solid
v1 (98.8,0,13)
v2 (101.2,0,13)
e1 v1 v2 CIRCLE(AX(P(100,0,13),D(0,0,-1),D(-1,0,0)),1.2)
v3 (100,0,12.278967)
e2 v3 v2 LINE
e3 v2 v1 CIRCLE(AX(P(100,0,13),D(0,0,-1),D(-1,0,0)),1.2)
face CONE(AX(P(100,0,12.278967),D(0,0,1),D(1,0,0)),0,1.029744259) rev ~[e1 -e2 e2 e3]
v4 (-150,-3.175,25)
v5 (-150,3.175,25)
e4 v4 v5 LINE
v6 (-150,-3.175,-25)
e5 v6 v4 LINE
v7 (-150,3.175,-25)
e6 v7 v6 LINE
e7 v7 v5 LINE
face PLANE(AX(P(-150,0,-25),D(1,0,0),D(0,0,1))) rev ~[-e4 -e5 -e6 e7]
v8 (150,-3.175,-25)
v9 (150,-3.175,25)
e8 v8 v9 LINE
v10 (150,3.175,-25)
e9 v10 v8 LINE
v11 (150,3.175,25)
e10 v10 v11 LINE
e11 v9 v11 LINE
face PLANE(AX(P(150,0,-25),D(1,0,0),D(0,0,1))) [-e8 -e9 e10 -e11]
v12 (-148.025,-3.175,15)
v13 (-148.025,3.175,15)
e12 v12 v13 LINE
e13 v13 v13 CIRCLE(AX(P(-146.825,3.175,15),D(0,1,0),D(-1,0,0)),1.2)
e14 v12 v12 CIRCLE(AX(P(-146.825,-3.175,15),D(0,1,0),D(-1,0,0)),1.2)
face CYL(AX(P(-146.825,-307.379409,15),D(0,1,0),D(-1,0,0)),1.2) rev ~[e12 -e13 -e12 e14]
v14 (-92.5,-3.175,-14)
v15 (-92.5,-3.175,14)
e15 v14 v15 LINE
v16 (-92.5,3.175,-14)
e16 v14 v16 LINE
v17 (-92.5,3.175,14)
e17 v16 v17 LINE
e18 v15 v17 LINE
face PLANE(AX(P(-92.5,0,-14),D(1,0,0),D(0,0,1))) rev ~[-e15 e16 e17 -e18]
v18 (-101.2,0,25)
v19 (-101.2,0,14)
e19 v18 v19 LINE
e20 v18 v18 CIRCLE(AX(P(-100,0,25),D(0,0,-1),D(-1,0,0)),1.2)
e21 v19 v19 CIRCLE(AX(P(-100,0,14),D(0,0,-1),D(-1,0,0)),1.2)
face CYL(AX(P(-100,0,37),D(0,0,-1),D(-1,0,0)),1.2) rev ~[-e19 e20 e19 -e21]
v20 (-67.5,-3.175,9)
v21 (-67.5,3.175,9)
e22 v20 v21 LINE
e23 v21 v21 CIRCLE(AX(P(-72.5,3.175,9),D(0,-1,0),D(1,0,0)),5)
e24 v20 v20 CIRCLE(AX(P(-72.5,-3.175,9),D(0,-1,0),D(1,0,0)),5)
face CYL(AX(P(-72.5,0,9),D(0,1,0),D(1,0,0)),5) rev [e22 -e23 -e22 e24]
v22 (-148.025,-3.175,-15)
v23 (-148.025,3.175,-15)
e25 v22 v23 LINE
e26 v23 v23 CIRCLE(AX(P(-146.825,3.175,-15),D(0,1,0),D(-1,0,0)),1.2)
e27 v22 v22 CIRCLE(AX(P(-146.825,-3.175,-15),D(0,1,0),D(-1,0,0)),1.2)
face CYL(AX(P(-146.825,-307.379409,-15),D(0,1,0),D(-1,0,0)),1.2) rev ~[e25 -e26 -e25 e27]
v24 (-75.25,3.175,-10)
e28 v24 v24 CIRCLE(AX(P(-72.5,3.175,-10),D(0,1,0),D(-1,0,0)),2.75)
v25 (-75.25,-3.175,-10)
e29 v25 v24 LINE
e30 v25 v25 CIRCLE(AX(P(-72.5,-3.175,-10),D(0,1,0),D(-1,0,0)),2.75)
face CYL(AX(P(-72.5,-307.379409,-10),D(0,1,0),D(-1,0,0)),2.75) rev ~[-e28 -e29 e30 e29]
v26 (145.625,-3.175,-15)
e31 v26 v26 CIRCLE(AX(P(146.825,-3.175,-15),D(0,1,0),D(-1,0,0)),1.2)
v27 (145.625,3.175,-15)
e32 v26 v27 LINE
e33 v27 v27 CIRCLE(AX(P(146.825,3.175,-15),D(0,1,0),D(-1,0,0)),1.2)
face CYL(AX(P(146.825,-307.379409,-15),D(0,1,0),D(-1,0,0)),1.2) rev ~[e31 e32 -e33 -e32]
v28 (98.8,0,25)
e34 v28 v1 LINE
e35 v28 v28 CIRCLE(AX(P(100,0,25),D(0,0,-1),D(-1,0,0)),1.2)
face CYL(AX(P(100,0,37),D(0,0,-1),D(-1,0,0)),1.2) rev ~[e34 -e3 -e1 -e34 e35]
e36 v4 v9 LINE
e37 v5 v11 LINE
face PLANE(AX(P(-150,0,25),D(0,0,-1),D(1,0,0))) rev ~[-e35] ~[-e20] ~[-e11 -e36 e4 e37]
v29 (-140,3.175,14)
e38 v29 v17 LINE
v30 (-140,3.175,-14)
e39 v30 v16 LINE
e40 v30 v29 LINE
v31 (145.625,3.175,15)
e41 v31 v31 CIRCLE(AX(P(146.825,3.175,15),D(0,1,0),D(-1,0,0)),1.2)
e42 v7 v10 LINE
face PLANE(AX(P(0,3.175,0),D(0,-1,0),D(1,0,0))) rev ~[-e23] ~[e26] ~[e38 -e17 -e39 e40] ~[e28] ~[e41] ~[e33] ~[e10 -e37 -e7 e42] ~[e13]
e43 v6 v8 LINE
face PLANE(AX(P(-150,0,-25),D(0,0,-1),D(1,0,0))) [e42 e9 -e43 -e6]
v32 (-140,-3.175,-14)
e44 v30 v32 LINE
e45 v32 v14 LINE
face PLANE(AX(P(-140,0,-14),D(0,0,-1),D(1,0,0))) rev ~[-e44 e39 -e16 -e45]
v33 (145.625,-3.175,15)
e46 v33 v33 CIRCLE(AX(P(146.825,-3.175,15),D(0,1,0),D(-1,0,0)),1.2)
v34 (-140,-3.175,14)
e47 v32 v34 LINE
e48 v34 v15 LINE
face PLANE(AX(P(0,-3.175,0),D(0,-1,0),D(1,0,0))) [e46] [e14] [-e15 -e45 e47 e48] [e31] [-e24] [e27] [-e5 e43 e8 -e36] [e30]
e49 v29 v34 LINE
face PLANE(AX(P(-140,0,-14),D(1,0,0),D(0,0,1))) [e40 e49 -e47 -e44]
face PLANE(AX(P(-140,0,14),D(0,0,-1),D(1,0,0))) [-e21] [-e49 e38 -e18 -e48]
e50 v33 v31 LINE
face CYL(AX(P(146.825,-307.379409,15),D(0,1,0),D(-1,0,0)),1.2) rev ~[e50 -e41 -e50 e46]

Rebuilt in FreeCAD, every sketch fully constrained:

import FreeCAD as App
import Part
import Sketcher
from FreeCAD import Vector
Q = App.Units.Quantity

doc = App.newDocument("Part")
body = doc.addObject("PartDesign::Body", "Body")

# Sketch on XZ plane
sketch1 = body.newObject("Sketcher::SketchObject", "Sketch")
sketch1.AttachmentSupport = (doc.getObject("XZ_Plane"), [""])
sketch1.MapMode = "FlatFace"
sketch1.addGeometry([
    Part.LineSegment(Vector(-150, 25, 0), Vector(-150, -25, 0)),  # 0
    Part.LineSegment(Vector(-150, -25, 0), Vector(150, -25, 0)),  # 1
    Part.LineSegment(Vector(150, -25, 0), Vector(150, 25, 0)),  # 2
    Part.LineSegment(Vector(150, 25, 0), Vector(-150, 25, 0)),  # 3
    Part.LineSegment(Vector(-92, -14, 0), Vector(-140, -14, 0)),  # 4
    Part.LineSegment(Vector(-140, -14, 0), Vector(-140, 14, 0)),  # 5
    Part.LineSegment(Vector(-140, 14, 0), Vector(-92, 14, 0)),  # 6
    Part.LineSegment(Vector(-92, 14, 0), Vector(-92, -14, 0)),  # 7
    Part.Circle(Vector(-72, 9, 0), Vector(0, 0, 1), 5),  # 8
], False)
sketch1.addConstraint([
    Sketcher.Constraint("Coincident", 0, 2, 1, 1),
    Sketcher.Constraint("Coincident", 1, 2, 2, 1),
    Sketcher.Constraint("Coincident", 2, 2, 3, 1),
    Sketcher.Constraint("Coincident", 3, 2, 0, 1),
    Sketcher.Constraint("Coincident", 4, 2, 5, 1),
    Sketcher.Constraint("Coincident", 5, 2, 6, 1),
    Sketcher.Constraint("Coincident", 6, 2, 7, 1),
    Sketcher.Constraint("Coincident", 7, 2, 4, 1),
    Sketcher.Constraint("Vertical", 0),
    Sketcher.Constraint("Horizontal", 1),
    Sketcher.Constraint("Vertical", 2),
    Sketcher.Constraint("Horizontal", 3),
    Sketcher.Constraint("Horizontal", 4),
    Sketcher.Constraint("Vertical", 5),
    Sketcher.Constraint("Horizontal", 6),
    Sketcher.Constraint("Vertical", 7),
    Sketcher.Constraint("Symmetric", 0, 2, 2, 2, -1, 1),
    Sketcher.Constraint("Diameter", 8, Q("10 mm")),
    Sketcher.Constraint("DistanceX", 1, 1, 1, 2, Q("300 mm")),
    Sketcher.Constraint("DistanceY", 0, 2, 0, 1, Q("50 mm")),
    Sketcher.Constraint("DistanceY", 5, 1, 5, 2, Q("28 mm")),
    Sketcher.Constraint("DistanceX", 4, 2, 4, 1, Q("47.5 mm")),
    Sketcher.Constraint("DistanceY", -1, 1, 8, 3, Q("9 mm")),
    Sketcher.Constraint("DistanceX", 4, 2, -1, 1, Q("140 mm")),
    Sketcher.Constraint("DistanceY", 4, 2, -1, 1, Q("14 mm")),
    Sketcher.Constraint("DistanceX", 6, 2, 8, 3, Q("20 mm")),
])
pad1 = body.newObject("PartDesign::Pad", "Pad")
pad1.Profile = sketch1
pad1.Length = 6.35
pad1.Midplane = True

# Sketch on XZ plane
sketch2 = body.newObject("Sketcher::SketchObject", "Sketch001")
sketch2.AttachmentSupport = (doc.getObject("XZ_Plane"), [""])
sketch2.MapMode = "FlatFace"
sketch2.AttachmentOffset = App.Placement(Vector(0, 0, 3.175), App.Rotation())
sketch2.addGeometry([
    Part.Circle(Vector(-146.8, 15, 0), Vector(0, 0, 1), 1.2),
    Part.Circle(Vector(-146.8, -15, 0), Vector(0, 0, 1), 1.2),
    Part.Circle(Vector(146.8, 15, 0), Vector(0, 0, 1), 1.2),
    Part.Circle(Vector(146.8, -15, 0), Vector(0, 0, 1), 1.2),
], False)
sketch2.addConstraint([
    Sketcher.Constraint("Equal", 0, 1),
    Sketcher.Constraint("Equal", 1, 2),
    Sketcher.Constraint("Equal", 2, 3),
    Sketcher.Constraint("Symmetric", 1, 3, 2, 3, -1, 1),
    Sketcher.Constraint("Symmetric", 0, 3, 3, 3, -1, 1),
    Sketcher.Constraint("Symmetric", 0, 3, 2, 3, -2),
    Sketcher.Constraint("Diameter", 0, Q("2.4 mm")),
    Sketcher.Constraint("DistanceY", -1, 1, 0, 3, Q("15 mm")),
    Sketcher.Constraint("DistanceX", 0, 3, 2, 3, Q("293.65 mm")),
])
doc.recompute()
hole = body.newObject("PartDesign::Hole", "Hole")
hole.Profile = sketch2
hole.ThreadType = "None"
hole.Diameter = 2.4
hole.DepthType = "ThroughAll"

# Sketch on XY plane
sketch3 = body.newObject("Sketcher::SketchObject", "Sketch002")
sketch3.AttachmentSupport = (doc.getObject("XY_Plane"), [""])
sketch3.MapMode = "FlatFace"
sketch3.AttachmentOffset = App.Placement(Vector(0, 0, 25), App.Rotation())
sketch3.addGeometry([
    Part.Circle(Vector(-100, 0, 0), Vector(0, 0, 1), 1.2),
    Part.Circle(Vector(100, 0, 0), Vector(0, 0, 1), 1.2),
], False)
sketch3.addConstraint([
    Sketcher.Constraint("Equal", 0, 1),
    Sketcher.Constraint("Symmetric", 0, 3, 1, 3, -1, 1),
    Sketcher.Constraint("PointOnObject", 0, 3, -1),
    Sketcher.Constraint("Diameter", 0, Q("2.4 mm")),
    Sketcher.Constraint("DistanceX", 0, 3, -1, 1, Q("100 mm")),
])
doc.recompute()
hole2 = body.newObject("PartDesign::Hole", "Hole001")
hole2.Profile = sketch3
hole2.ThreadType = "None"
hole2.Diameter = 2.4
hole2.DepthType = "Dimension"
hole2.Depth = 12
hole2.DrillPoint = "Angled"
hole2.DrillPointAngle = 118

# Sketch on XZ plane
sketch4 = body.newObject("Sketcher::SketchObject", "Sketch003")
sketch4.AttachmentSupport = (doc.getObject("XZ_Plane"), [""])
sketch4.MapMode = "FlatFace"
sketch4.AttachmentOffset = App.Placement(Vector(0, 0, 3.175), App.Rotation())
sketch4.addGeometry(Part.Circle(Vector(-72.5, -10, 0), Vector(0, 0, 1), 2.8), False)
sketch4.addConstraint([
    Sketcher.Constraint("Diameter", 0, Q("5.5 mm")),
    Sketcher.Constraint("DistanceY", 0, 3, -1, 1, Q("10 mm")),
    Sketcher.Constraint("DistanceX", 0, 3, -1, 1, Q("72.5 mm")),
])
doc.recompute()
hole3 = body.newObject("PartDesign::Hole", "Hole002")
hole3.Profile = sketch4
hole3.ThreadType = "None"
hole3.Diameter = 5.5
hole3.DepthType = "ThroughAll"

doc.recompute()
